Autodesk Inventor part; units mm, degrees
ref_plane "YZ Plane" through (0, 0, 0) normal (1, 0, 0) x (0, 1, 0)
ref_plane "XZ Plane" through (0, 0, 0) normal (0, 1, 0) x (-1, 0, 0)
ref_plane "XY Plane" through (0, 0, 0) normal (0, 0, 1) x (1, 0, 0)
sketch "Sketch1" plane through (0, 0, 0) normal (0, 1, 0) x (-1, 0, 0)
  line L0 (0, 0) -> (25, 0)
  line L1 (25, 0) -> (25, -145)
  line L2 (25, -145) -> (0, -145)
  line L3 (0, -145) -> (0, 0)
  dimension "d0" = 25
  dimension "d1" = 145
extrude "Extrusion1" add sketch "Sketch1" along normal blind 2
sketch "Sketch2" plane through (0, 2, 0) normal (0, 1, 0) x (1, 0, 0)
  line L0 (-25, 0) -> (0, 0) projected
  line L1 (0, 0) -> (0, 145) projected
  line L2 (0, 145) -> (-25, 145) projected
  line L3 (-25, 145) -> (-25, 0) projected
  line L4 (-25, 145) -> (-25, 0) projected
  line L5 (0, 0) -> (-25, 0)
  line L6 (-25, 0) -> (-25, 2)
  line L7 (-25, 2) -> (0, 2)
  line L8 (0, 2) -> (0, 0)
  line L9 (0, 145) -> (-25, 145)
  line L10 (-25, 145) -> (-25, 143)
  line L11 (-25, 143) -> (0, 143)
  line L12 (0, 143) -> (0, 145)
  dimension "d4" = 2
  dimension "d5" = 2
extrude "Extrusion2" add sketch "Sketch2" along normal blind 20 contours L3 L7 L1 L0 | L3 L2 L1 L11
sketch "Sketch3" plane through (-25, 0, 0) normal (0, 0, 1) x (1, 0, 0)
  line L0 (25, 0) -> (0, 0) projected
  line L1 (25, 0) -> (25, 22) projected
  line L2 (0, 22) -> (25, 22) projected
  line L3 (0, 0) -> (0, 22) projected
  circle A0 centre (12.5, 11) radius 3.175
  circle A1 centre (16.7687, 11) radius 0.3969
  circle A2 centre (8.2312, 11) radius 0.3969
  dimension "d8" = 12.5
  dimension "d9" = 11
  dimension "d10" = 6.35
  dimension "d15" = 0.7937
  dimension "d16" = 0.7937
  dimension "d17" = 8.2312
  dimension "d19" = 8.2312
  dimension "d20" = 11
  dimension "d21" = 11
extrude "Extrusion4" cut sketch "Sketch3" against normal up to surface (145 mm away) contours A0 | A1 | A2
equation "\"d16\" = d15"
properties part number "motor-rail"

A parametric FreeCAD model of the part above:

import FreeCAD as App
import Part
import Sketcher
from FreeCAD import Vector
Q = App.Units.Quantity


def add_polygon(sketch, points):
    """Adds a closed chain of lines whose ends are joined by coincident constraints."""
    first, n = sketch.GeometryCount, len(points)
    for a, b in zip(points, points[1:] + points[:1]):
        sketch.addGeometry(Part.LineSegment(App.Vector(*a, 0), App.Vector(*b, 0)), False)
    for i in range(n):
        sketch.addConstraint(Sketcher.Constraint("Coincident", first + i, 2, first + (i + 1) % n, 1))

doc = App.newDocument("Part")
params = doc.addObject("Spreadsheet::Sheet", "Params")
for row, (alias, value) in enumerate([
    ("sketch1_width", "25 mm"),
    ("sketch1_height", "145 mm"),
    ("pad1_length", "2 mm"),
    ("sketch2_height", "2 mm"),
    ("sketch2_width", "25 mm"),
    ("pad2_length", "20 mm"),
    ("sketch3_diameter", "6.35 mm"),
    ("pocket1_length", "145 mm"),
], start=1):
    params.set(f"A{row}", alias)
    params.set(f"B{row}", "=" + value)
    params.setAlias(f"B{row}", alias)

body = doc.addObject("PartDesign::Body", "Body")

sketch1 = doc.addObject("Sketcher::SketchObject", "Sketch")
body.addObject(sketch1)
sketch1.AttachmentSupport = (doc.XZ_Plane, [""])
sketch1.MapMode = "FlatFace"
add_polygon(sketch1, [(-25, 0), (0, 0), (0, -145), (-25, -145)])
sketch1.addConstraint([
    Sketcher.Constraint("Horizontal", 0),
    Sketcher.Constraint("Vertical", 1),
    Sketcher.Constraint("Horizontal", 2),
    Sketcher.Constraint("Vertical", 3),
    Sketcher.Constraint("Coincident", 0, 2, -1, 1),
    Sketcher.Constraint("DistanceX", 0, 1, 0, 2, Q("25 mm")),
    Sketcher.Constraint("DistanceY", 1, 2, 1, 1, Q("145 mm")),
])
sketch1.setExpression("Constraints[9]", "Params.sketch1_width")
sketch1.setExpression("Constraints[10]", "Params.sketch1_height")
pad1 = doc.addObject("PartDesign::Pad", "Pad")
body.addObject(pad1)
pad1.Profile = sketch1
pad1.setExpression("Length", "Params.pad1_length")
pad1.Reversed = True

sketch2 = doc.addObject("Sketcher::SketchObject", "Sketch001")
body.addObject(sketch2)
sketch2.AttachmentSupport = (doc.XZ_Plane, [""])
sketch2.MapMode = "FlatFace"
sketch2.AttachmentOffset = App.Placement(Vector(0, 0, -2), App.Rotation())
add_polygon(sketch2, [(-25, -2), (-25, 0), (0, 0), (0, -2)])
add_polygon(sketch2, [(-25, -145), (-25, -143), (0, -143), (0, -145)])
sketch2.addConstraint([
    Sketcher.Constraint("Vertical", 0),
    Sketcher.Constraint("Horizontal", 1),
    Sketcher.Constraint("Vertical", 2),
    Sketcher.Constraint("Horizontal", 3),
    Sketcher.Constraint("Vertical", 4),
    Sketcher.Constraint("Horizontal", 5),
    Sketcher.Constraint("Vertical", 6),
    Sketcher.Constraint("Horizontal", 7),
    Sketcher.Constraint("Coincident", 1, 2, -1, 1),
    Sketcher.Constraint("PointOnObject", 5, 2, -2),
    Sketcher.Constraint("Vertical", 3, 2, 4, 2),
    Sketcher.Constraint("Equal", 2, 4),
    Sketcher.Constraint("DistanceY", 0, 1, 0, 2, Q("2 mm")),
    Sketcher.Constraint("DistanceX", 1, 1, 1, 2, Q("25 mm")),
    Sketcher.Constraint("DistanceY", 4, 2, -1, 1, Q("143 mm")),
])
sketch2.setExpression("Constraints[20]", "Params.sketch2_height")
sketch2.setExpression("Constraints[21]", "Params.sketch2_width")
pad2 = doc.addObject("PartDesign::Pad", "Pad001")
body.addObject(pad2)
pad2.Profile = sketch2
pad2.setExpression("Length", "Params.pad2_length")
pad2.Reversed = True

sketch3 = doc.addObject("Sketcher::SketchObject", "Sketch002")
body.addObject(sketch3)
sketch3.AttachmentSupport = (doc.XY_Plane, [""])
sketch3.MapMode = "FlatFace"
sketch3.addGeometry([
    Part.Circle(Vector(-12.5, 11, 0), Vector(0, 0, 1), 3.17),
    Part.Circle(Vector(-8.23, 11, 0), Vector(0, 0, 1), 0.4),
    Part.Circle(Vector(-16.77, 11, 0), Vector(0, 0, 1), 0.4),
], False)
sketch3.addConstraint([
    Sketcher.Constraint("Equal", 1, 2),
    Sketcher.Constraint("Horizontal", 0, 3, 1, 3),
    Sketcher.Constraint("Horizontal", 1, 3, 2, 3),
    Sketcher.Constraint("Diameter", 0, Q("6.35 mm")),
    Sketcher.Constraint("DistanceY", -1, 1, 0, 3, Q("11 mm")),
    Sketcher.Constraint("Diameter", 1, Q("0.7938 mm")),
    Sketcher.Constraint("DistanceX", 0, 3, -1, 1, Q("12.5 mm")),
    Sketcher.Constraint("DistanceX", 1, 3, -1, 1, Q("8.2313 mm")),
    Sketcher.Constraint("DistanceX", 2, 3, -1, 1, Q("16.7688 mm")),
])
sketch3.setExpression("Constraints[3]", "Params.sketch3_diameter")
pocket1 = doc.addObject("PartDesign::Pocket", "Pocket")
body.addObject(pocket1)
pocket1.Profile = sketch3
pocket1.setExpression("Length", "Params.pocket1_length")

doc.recompute()
